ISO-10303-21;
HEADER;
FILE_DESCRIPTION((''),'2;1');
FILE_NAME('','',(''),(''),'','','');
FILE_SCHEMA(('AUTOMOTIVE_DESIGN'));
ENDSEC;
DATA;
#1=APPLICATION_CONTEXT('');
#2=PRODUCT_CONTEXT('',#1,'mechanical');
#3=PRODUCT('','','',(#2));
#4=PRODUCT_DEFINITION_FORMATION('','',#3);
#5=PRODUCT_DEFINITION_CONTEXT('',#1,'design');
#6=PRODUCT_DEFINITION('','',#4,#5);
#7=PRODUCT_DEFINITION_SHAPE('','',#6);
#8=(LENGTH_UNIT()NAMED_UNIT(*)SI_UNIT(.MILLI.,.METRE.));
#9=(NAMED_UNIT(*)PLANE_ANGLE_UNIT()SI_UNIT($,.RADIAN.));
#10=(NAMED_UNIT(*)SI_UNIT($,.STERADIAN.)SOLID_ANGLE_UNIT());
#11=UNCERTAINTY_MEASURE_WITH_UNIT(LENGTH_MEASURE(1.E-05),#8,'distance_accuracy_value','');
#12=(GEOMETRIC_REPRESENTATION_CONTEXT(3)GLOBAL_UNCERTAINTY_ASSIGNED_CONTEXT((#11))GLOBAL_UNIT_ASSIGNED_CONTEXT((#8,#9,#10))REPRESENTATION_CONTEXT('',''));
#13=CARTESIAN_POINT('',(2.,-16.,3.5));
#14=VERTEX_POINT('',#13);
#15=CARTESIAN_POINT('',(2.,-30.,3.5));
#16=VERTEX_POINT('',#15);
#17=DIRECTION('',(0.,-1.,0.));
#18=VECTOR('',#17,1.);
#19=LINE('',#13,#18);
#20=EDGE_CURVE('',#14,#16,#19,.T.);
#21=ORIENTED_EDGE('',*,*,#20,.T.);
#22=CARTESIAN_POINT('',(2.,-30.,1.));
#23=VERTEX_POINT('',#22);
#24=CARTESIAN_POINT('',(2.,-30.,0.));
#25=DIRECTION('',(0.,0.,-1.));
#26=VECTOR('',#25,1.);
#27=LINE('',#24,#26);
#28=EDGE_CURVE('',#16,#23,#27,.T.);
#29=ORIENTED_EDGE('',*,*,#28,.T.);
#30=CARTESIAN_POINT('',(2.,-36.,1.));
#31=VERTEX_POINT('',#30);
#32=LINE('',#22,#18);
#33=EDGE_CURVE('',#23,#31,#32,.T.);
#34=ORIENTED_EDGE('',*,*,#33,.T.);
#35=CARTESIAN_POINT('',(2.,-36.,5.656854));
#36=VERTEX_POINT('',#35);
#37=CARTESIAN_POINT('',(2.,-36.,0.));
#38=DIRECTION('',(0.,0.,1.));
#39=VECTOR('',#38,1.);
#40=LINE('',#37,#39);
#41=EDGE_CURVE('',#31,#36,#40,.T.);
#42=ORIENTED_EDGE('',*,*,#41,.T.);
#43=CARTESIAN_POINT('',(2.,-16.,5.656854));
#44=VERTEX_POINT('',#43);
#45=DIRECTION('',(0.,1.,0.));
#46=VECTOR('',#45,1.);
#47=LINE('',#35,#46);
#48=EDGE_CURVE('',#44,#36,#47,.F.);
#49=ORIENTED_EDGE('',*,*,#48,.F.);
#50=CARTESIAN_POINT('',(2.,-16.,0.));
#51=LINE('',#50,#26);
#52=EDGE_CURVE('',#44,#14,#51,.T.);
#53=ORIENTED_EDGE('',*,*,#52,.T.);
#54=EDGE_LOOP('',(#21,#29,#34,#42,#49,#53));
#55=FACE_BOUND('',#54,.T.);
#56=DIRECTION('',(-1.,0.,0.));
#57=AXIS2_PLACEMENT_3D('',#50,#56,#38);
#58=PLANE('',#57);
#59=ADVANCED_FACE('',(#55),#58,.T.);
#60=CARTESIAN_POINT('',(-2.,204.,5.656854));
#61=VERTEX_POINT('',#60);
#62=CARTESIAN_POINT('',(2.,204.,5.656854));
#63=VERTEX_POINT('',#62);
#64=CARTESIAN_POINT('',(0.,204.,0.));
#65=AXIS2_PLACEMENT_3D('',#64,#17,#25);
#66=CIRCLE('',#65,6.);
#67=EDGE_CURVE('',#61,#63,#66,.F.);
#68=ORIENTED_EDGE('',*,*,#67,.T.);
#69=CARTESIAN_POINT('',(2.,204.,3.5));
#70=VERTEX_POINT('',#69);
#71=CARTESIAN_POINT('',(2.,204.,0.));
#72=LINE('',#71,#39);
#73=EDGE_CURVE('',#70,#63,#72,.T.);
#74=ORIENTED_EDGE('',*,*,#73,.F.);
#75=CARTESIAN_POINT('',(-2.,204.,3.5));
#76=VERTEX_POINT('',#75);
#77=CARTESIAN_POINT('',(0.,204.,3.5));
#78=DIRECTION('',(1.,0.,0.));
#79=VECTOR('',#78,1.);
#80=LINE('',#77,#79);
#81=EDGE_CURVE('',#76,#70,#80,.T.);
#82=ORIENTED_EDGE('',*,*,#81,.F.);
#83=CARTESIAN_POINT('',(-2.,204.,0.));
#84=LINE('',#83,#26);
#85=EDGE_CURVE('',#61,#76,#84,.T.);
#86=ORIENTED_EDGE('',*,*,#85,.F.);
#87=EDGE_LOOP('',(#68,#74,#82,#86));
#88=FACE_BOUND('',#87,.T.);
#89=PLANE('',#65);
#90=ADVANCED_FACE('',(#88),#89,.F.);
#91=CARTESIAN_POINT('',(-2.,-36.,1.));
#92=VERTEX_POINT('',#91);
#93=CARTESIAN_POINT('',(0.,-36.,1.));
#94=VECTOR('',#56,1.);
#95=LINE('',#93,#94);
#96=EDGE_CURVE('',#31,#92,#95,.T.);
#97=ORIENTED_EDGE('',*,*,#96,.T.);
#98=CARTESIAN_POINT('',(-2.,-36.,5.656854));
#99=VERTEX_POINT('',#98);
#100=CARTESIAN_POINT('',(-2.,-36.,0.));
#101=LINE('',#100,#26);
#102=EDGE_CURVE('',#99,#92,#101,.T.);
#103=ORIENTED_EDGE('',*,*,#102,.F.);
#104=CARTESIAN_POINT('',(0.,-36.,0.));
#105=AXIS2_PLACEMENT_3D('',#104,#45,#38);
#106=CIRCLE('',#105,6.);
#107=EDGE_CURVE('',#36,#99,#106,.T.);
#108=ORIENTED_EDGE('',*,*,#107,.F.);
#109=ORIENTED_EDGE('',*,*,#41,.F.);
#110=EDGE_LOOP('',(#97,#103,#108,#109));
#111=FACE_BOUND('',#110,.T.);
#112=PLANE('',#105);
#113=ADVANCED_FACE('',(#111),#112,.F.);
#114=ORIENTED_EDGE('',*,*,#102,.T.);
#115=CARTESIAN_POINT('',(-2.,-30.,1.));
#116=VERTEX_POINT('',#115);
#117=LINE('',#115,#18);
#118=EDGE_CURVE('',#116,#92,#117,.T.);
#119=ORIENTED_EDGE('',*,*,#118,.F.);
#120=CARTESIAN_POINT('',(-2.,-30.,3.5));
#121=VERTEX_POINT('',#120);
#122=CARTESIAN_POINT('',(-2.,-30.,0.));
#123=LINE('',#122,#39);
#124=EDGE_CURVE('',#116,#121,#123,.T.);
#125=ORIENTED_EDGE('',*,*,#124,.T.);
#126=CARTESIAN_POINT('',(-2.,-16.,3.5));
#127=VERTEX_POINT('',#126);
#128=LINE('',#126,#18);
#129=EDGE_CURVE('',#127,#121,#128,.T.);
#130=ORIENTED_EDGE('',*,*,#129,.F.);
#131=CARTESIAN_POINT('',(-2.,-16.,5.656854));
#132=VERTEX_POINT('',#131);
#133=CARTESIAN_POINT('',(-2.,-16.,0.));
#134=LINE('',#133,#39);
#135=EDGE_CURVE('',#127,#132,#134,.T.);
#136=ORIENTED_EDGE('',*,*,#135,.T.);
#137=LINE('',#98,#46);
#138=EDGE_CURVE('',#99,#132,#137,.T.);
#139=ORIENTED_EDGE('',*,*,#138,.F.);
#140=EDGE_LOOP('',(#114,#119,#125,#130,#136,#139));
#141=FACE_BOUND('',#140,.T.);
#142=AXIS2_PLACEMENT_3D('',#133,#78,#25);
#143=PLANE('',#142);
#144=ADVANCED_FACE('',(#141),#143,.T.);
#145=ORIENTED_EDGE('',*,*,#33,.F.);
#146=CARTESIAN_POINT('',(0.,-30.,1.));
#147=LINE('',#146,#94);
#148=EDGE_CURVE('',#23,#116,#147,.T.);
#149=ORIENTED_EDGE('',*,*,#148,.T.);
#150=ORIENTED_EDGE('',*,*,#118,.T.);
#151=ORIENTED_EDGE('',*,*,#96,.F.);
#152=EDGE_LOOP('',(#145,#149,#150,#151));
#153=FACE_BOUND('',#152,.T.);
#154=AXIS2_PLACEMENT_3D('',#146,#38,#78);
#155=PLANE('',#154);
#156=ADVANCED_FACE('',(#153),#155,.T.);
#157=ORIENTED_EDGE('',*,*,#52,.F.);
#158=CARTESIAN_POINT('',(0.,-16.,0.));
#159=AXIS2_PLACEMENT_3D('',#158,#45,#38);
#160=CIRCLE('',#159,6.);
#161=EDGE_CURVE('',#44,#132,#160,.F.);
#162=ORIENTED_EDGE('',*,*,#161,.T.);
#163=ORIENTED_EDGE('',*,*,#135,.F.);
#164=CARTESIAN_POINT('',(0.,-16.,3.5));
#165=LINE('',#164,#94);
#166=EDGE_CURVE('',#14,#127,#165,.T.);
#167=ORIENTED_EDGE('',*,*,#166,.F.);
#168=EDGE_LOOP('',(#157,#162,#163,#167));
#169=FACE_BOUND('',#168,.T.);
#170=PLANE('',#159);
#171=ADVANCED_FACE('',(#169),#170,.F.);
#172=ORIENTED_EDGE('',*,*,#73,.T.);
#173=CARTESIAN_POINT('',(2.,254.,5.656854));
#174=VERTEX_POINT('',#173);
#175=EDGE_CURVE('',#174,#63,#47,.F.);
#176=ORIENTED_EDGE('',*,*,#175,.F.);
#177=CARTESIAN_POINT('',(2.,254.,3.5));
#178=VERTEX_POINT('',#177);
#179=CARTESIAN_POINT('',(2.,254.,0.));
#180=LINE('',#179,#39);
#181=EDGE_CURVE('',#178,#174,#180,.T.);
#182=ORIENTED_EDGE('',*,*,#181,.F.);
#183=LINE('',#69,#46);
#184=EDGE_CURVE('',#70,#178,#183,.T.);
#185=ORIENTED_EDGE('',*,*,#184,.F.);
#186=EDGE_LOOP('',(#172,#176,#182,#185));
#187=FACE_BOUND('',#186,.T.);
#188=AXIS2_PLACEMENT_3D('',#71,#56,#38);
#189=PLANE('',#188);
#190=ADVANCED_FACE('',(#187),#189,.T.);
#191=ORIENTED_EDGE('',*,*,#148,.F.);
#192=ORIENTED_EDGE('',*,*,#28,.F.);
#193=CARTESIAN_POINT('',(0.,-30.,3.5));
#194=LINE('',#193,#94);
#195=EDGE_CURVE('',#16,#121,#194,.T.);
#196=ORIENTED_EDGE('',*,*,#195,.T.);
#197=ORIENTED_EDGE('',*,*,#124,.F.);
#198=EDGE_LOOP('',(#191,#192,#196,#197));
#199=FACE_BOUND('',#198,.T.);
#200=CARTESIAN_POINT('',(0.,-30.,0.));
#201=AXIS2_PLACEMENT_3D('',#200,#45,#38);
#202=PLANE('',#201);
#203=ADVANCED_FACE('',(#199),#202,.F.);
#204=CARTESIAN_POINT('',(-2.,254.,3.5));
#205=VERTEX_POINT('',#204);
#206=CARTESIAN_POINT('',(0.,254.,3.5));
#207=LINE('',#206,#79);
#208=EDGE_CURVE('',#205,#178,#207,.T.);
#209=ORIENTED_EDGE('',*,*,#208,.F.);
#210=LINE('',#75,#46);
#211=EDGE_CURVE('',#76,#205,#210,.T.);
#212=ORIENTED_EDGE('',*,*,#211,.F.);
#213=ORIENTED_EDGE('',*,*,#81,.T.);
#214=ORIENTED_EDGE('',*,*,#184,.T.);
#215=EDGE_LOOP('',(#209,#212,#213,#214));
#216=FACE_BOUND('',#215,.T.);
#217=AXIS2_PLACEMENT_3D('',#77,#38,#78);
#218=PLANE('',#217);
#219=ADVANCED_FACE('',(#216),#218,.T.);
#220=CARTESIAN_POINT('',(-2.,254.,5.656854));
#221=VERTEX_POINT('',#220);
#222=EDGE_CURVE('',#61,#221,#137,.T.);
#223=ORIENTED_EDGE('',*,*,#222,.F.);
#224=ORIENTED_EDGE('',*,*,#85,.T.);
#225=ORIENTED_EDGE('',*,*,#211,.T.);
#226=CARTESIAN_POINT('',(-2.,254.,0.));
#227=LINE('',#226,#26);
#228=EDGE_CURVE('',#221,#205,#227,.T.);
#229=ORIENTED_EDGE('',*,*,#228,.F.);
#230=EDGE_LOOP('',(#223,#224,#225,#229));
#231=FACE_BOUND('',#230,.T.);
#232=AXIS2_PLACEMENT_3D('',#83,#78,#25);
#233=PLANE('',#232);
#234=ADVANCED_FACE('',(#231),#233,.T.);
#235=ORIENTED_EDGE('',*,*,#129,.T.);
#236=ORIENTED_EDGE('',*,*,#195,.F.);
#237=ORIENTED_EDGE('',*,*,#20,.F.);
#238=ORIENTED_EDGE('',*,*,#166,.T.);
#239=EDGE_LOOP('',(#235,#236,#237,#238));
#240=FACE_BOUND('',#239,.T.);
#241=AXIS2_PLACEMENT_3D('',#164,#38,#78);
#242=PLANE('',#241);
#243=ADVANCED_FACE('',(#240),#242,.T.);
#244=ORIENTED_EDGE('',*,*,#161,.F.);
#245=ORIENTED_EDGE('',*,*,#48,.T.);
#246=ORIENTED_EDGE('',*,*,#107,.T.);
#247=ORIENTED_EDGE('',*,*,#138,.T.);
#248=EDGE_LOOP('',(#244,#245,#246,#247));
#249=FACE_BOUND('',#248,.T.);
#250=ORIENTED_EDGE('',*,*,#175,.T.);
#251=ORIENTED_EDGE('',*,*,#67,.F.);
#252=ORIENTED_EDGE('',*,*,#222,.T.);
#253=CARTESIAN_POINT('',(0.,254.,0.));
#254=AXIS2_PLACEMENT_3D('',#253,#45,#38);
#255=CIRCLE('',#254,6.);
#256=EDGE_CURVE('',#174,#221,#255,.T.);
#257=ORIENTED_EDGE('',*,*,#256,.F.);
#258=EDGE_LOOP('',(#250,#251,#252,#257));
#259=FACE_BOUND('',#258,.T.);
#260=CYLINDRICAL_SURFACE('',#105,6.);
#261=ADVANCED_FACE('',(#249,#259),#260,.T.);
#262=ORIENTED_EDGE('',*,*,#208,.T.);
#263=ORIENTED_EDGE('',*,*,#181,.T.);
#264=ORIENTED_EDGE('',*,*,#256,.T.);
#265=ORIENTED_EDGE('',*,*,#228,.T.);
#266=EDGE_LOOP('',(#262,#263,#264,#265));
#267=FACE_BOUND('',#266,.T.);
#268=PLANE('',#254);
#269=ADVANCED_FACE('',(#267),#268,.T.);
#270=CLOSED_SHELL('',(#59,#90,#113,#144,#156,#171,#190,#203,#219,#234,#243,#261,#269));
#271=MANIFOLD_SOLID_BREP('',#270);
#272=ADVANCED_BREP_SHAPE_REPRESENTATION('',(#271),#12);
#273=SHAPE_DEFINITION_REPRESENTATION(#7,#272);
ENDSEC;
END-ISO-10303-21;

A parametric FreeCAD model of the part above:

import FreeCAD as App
import Part
import Sketcher
from FreeCAD import Vector
Q = App.Units.Quantity


def add_polygon(sketch, points):
    """Adds a closed chain of lines whose ends are joined by coincident constraints."""
    first, n = sketch.GeometryCount, len(points)
    for a, b in zip(points, points[1:] + points[:1]):
        sketch.addGeometry(Part.LineSegment(App.Vector(*a, 0), App.Vector(*b, 0)), False)
    for i in range(n):
        sketch.addConstraint(Sketcher.Constraint("Coincident", first + i, 2, first + (i + 1) % n, 1))

doc = App.newDocument("Part")
body = doc.addObject("PartDesign::Body", "Body")

# Sketch on XZ plane
sketch1 = body.newObject("Sketcher::SketchObject", "Sketch")
sketch1.AttachmentSupport = (doc.getObject("XZ_Plane"), [""])
sketch1.MapMode = "FlatFace"
sketch1.addGeometry(Part.Circle(Vector(0, 0, 0), Vector(0, 0, 1), 6), False)
sketch1.addConstraint([
    Sketcher.Constraint("Coincident", 0, 3, -1, 1),
    Sketcher.Constraint("Diameter", 0, Q("12 mm")),
])
pad1 = body.newObject("PartDesign::Pad", "Pad")
pad1.Profile = sketch1
pad1.Type = "TwoLengths"
pad1.Length = 254
pad1.Length2 = 36
pad1.Reversed = True

# Sketch on XZ plane
sketch2 = body.newObject("Sketcher::SketchObject", "Sketch001")
sketch2.AttachmentSupport = (doc.getObject("XZ_Plane"), [""])
sketch2.MapMode = "FlatFace"
sketch2.AttachmentOffset = App.Placement(Vector(0, 0, 36), App.Rotation())
add_polygon(sketch2, [(-2, 3.5), (-2, 8.5), (2, 8.5), (2, 3.5)])  # lines 0-3
sketch2.addConstraint([
    Sketcher.Constraint("Vertical", 0),
    Sketcher.Constraint("Horizontal", 1),
    Sketcher.Constraint("Vertical", 2),
    Sketcher.Constraint("Horizontal", 3),
    Sketcher.Constraint("DistanceX", 1, 1, 1, 2, Q("4 mm")),
    Sketcher.Constraint("DistanceY", 0, 1, 0, 2, Q("5 mm")),
    Sketcher.Constraint("DistanceX", 0, 2, -1, 1, Q("2 mm")),
    Sketcher.Constraint("DistanceY", -1, 1, 0, 2, Q("8.5 mm")),
])
pocket1 = body.newObject("PartDesign::Pocket", "Pocket")
pocket1.Profile = sketch2
pocket1.Type = "TwoLengths"
pocket1.Length = 20
pocket1.Length2 = 0.0001

# Sketch on XZ plane
sketch3 = body.newObject("Sketcher::SketchObject", "Sketch002")
sketch3.AttachmentSupport = (doc.getObject("XZ_Plane"), [""])
sketch3.MapMode = "FlatFace"
sketch3.AttachmentOffset = App.Placement(Vector(0, 0, -254), App.Rotation())
add_polygon(sketch3, [(-2, 3.5), (-2, 8.5), (2, 8.5), (2, 3.5)])  # lines 0-3
sketch3.addConstraint([
    Sketcher.Constraint("Vertical", 0),
    Sketcher.Constraint("Horizontal", 1),
    Sketcher.Constraint("Vertical", 2),
    Sketcher.Constraint("Horizontal", 3),
    Sketcher.Constraint("DistanceX", 1, 1, 1, 2, Q("4 mm")),
    Sketcher.Constraint("DistanceY", 0, 1, 0, 2, Q("5 mm")),
    Sketcher.Constraint("DistanceX", 0, 2, -1, 1, Q("2 mm")),
    Sketcher.Constraint("DistanceY", -1, 1, 0, 2, Q("8.5 mm")),
])
pocket2 = body.newObject("PartDesign::Pocket", "Pocket001")
pocket2.Profile = sketch3
pocket2.Length = 50
pocket2.Reversed = True

# Sketch on XZ plane
sketch4 = body.newObject("Sketcher::SketchObject", "Sketch003")
sketch4.AttachmentSupport = (doc.getObject("XZ_Plane"), [""])
sketch4.MapMode = "FlatFace"
sketch4.AttachmentOffset = App.Placement(Vector(0, 0, 36), App.Rotation())
add_polygon(sketch4, [(-2, 1), (-2, 11), (2, 11), (2, 1)])  # lines 0-3
sketch4.addConstraint([
    Sketcher.Constraint("Vertical", 0),
    Sketcher.Constraint("Horizontal", 1),
    Sketcher.Constraint("Vertical", 2),
    Sketcher.Constraint("Horizontal", 3),
    Sketcher.Constraint("DistanceX", 1, 1, 1, 2, Q("4 mm")),
    Sketcher.Constraint("DistanceY", 0, 1, 0, 2, Q("10 mm")),
    Sketcher.Constraint("DistanceX", 0, 2, -1, 1, Q("2 mm")),
    Sketcher.Constraint("DistanceY", -1, 1, 0, 2, Q("11 mm")),
])
pocket3 = body.newObject("PartDesign::Pocket", "Pocket002")
pocket3.Profile = sketch4
pocket3.Length = 6

doc.recompute()
